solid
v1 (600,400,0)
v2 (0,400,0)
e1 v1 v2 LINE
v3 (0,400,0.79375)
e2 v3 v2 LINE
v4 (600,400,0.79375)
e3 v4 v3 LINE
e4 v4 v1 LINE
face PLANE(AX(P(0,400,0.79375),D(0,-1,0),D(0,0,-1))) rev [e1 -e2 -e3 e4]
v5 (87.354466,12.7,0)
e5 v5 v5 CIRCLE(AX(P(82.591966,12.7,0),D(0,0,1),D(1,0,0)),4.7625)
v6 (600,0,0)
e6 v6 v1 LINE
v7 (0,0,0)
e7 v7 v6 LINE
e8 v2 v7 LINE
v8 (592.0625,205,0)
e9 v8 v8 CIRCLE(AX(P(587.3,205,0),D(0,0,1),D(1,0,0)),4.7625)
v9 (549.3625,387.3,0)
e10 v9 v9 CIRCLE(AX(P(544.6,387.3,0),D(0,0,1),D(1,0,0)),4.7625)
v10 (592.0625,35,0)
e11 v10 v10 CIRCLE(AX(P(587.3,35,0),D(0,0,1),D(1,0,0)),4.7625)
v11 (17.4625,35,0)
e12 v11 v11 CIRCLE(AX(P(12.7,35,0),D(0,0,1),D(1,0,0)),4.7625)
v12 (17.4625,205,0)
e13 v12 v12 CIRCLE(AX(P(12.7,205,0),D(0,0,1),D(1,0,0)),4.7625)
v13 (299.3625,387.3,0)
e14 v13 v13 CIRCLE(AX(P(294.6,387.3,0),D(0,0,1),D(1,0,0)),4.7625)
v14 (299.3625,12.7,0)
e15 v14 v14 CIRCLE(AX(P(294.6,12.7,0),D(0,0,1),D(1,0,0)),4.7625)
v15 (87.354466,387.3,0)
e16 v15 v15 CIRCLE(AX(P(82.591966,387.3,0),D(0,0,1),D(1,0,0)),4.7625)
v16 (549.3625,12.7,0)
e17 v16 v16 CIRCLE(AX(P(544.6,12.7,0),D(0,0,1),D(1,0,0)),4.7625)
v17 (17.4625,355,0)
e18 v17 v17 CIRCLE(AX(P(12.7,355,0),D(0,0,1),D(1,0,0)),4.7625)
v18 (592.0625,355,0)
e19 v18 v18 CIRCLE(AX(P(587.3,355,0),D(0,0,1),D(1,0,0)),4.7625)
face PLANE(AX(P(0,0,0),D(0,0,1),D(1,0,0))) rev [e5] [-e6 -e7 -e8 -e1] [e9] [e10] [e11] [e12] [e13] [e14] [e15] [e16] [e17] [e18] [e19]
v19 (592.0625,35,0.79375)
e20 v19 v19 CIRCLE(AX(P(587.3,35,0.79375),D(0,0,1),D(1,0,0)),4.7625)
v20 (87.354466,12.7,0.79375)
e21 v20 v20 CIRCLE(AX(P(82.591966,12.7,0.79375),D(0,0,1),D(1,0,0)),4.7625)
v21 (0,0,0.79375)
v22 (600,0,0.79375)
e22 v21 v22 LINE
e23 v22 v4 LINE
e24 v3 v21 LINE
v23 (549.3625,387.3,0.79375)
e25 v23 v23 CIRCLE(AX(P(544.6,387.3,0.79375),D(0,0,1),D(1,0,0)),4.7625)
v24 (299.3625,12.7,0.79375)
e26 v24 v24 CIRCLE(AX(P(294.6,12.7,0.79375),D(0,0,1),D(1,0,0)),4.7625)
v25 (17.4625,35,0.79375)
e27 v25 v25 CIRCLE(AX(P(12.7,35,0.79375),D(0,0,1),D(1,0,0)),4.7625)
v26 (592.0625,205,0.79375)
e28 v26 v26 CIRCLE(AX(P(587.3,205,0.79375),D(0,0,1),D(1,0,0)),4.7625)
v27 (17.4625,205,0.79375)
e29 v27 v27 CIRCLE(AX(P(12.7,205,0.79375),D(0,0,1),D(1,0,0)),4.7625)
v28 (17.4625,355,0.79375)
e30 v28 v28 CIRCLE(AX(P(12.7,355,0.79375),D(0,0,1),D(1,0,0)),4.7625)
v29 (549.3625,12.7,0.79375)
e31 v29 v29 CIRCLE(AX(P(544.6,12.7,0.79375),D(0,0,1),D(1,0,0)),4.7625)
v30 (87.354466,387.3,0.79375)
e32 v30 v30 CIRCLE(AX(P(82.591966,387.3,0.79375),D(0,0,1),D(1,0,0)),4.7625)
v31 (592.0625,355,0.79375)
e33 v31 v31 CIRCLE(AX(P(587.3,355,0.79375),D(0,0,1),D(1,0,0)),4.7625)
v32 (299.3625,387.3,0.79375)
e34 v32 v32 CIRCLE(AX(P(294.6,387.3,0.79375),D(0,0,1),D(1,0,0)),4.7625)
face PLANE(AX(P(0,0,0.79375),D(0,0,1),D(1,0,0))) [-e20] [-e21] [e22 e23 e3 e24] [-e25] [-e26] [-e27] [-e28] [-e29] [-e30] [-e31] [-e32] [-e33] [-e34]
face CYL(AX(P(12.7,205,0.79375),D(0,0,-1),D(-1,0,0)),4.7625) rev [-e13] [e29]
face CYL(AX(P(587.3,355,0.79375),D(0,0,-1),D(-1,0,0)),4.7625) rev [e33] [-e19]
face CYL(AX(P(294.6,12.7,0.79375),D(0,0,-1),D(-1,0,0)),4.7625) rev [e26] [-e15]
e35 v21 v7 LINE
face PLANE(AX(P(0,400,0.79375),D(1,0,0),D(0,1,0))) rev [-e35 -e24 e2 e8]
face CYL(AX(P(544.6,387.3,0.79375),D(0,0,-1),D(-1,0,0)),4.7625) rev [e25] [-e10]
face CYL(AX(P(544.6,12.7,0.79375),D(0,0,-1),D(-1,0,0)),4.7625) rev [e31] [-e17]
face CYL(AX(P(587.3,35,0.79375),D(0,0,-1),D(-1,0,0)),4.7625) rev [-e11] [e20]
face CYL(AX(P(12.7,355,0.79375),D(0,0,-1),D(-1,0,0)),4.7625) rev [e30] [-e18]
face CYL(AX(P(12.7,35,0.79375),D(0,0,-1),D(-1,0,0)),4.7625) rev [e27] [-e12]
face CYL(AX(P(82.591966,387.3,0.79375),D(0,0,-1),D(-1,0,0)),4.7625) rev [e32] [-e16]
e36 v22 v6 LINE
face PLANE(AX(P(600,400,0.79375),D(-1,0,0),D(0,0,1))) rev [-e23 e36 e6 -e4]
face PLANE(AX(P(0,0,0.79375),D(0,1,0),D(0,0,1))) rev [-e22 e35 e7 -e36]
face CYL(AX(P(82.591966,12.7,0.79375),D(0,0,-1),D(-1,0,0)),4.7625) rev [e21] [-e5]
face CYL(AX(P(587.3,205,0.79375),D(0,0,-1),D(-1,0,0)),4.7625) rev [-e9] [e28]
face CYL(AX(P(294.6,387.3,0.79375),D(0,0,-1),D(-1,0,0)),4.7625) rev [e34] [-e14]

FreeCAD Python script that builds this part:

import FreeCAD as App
import Part
import Sketcher
from FreeCAD import Vector

doc = App.newDocument("Part")
body = doc.addObject("PartDesign::Body", "Body")

# Sketch on XY plane
sketch1 = body.newObject("Sketcher::SketchObject", "Sketch")
sketch1.AttachmentSupport = (doc.getObject("XY_Plane"), [""])
sketch1.MapMode = "FlatFace"
sketch1.addGeometry(Part.LineSegment(Vector(0, 400, 0), Vector(0, 0, 0)), False)
sketch1.addGeometry(Part.LineSegment(Vector(0, 0, 0), Vector(600, 0, 0)), False)
sketch1.addGeometry(Part.LineSegment(Vector(600, 0, 0), Vector(600, 400, 0)), False)
sketch1.addGeometry(Part.LineSegment(Vector(600, 400, 0), Vector(0, 400, 0)), False)
sketch1.addGeometry(Part.Circle(Vector(12.7, 35, 0), Vector(0, 0, 1), 4.7625), False)
sketch1.addGeometry(Part.Circle(Vector(82.591966, 12.7, 0), Vector(0, 0, 1), 4.7625), False)
sketch1.addGeometry(Part.Circle(Vector(294.6, 12.7, 0), Vector(0, 0, 1), 4.7625), False)
sketch1.addGeometry(Part.Circle(Vector(544.6, 12.7, 0), Vector(0, 0, 1), 4.7625), False)
sketch1.addGeometry(Part.Circle(Vector(587.3, 35, 0), Vector(0, 0, 1), 4.7625), False)
sketch1.addGeometry(Part.Circle(Vector(12.7, 205, 0), Vector(0, 0, 1), 4.7625), False)
sketch1.addGeometry(Part.Circle(Vector(12.7, 355, 0), Vector(0, 0, 1), 4.7625), False)
sketch1.addGeometry(Part.Circle(Vector(82.591966, 387.3, 0), Vector(0, 0, 1), 4.7625), False)
sketch1.addGeometry(Part.Circle(Vector(294.6, 387.3, 0), Vector(0, 0, 1), 4.7625), False)
sketch1.addGeometry(Part.Circle(Vector(587.3, 205, 0), Vector(0, 0, 1), 4.7625), False)
sketch1.addGeometry(Part.Circle(Vector(587.3, 355, 0), Vector(0, 0, 1), 4.7625), False)
sketch1.addGeometry(Part.Circle(Vector(544.6, 387.3, 0), Vector(0, 0, 1), 4.7625), False)
sketch1.addConstraint(Sketcher.Constraint("Coincident", 0, 2, 1, 1))
sketch1.addConstraint(Sketcher.Constraint("Coincident", 1, 2, 2, 1))
sketch1.addConstraint(Sketcher.Constraint("Coincident", 2, 2, 3, 1))
sketch1.addConstraint(Sketcher.Constraint("Coincident", 3, 2, 0, 1))
sketch1.addConstraint(Sketcher.Constraint("Vertical", 0))
sketch1.addConstraint(Sketcher.Constraint("Horizontal", 1))
sketch1.addConstraint(Sketcher.Constraint("Vertical", 2))
sketch1.addConstraint(Sketcher.Constraint("Horizontal", 3))
sketch1.addConstraint(Sketcher.Constraint("Coincident", 0, 2, -1, 1))
sketch1.addConstraint(Sketcher.Constraint("Equal", 4, 5))
sketch1.addConstraint(Sketcher.Constraint("Equal", 5, 6))
sketch1.addConstraint(Sketcher.Constraint("Equal", 6, 7))
sketch1.addConstraint(Sketcher.Constraint("Equal", 7, 8))
sketch1.addConstraint(Sketcher.Constraint("Equal", 8, 9))
sketch1.addConstraint(Sketcher.Constraint("Equal", 9, 10))
sketch1.addConstraint(Sketcher.Constraint("Equal", 10, 11))
sketch1.addConstraint(Sketcher.Constraint("Equal", 11, 12))
sketch1.addConstraint(Sketcher.Constraint("Equal", 12, 13))
sketch1.addConstraint(Sketcher.Constraint("Equal", 13, 14))
sketch1.addConstraint(Sketcher.Constraint("Equal", 14, 15))
sketch1.addConstraint(Sketcher.Constraint("Horizontal", 5, 3, 6, 3))
sketch1.addConstraint(Sketcher.Constraint("Horizontal", 6, 3, 7, 3))
sketch1.addConstraint(Sketcher.Constraint("Horizontal", 4, 3, 8, 3))
sketch1.addConstraint(Sketcher.Constraint("Horizontal", 11, 3, 12, 3))
sketch1.addConstraint(Sketcher.Constraint("Horizontal", 9, 3, 13, 3))
sketch1.addConstraint(Sketcher.Constraint("Horizontal", 10, 3, 14, 3))
sketch1.addConstraint(Sketcher.Constraint("Horizontal", 12, 3, 15, 3))
sketch1.addConstraint(Sketcher.Constraint("Vertical", 4, 3, 9, 3))
sketch1.addConstraint(Sketcher.Constraint("Vertical", 9, 3, 10, 3))
sketch1.addConstraint(Sketcher.Constraint("Vertical", 5, 3, 11, 3))
sketch1.addConstraint(Sketcher.Constraint("Vertical", 6, 3, 12, 3))
sketch1.addConstraint(Sketcher.Constraint("Vertical", 8, 3, 13, 3))
sketch1.addConstraint(Sketcher.Constraint("Vertical", 13, 3, 14, 3))
sketch1.addConstraint(Sketcher.Constraint("Vertical", 7, 3, 15, 3))
sketch1.addConstraint(Sketcher.Constraint("DistanceX", 1, 1, 1, 2, 600.0))
sketch1.addConstraint(Sketcher.Constraint("DistanceY", 0, 2, 0, 1, 400.0))
sketch1.addConstraint(Sketcher.Constraint("Diameter", 4, 9.525))
sketch1.addConstraint(Sketcher.Constraint("DistanceY", -1, 1, 4, 3, 35.0))
sketch1.addConstraint(Sketcher.Constraint("DistanceY", -1, 1, 9, 3, 205.0))
sketch1.addConstraint(Sketcher.Constraint("DistanceY", -1, 1, 10, 3, 355.0))
sketch1.addConstraint(Sketcher.Constraint("DistanceX", 6, 3, 7, 3, 250.0))
sketch1.addConstraint(Sketcher.Constraint("DistanceX", -1, 1, 4, 3, 12.7))
sketch1.addConstraint(Sketcher.Constraint("DistanceY", -1, 1, 5, 3, 12.7))
sketch1.addConstraint(Sketcher.Constraint("DistanceX", -1, 1, 6, 3, 294.6))
sketch1.addConstraint(Sketcher.Constraint("DistanceX", -1, 1, 8, 3, 587.3))
sketch1.addConstraint(Sketcher.Constraint("DistanceY", -1, 1, 11, 3, 387.3))
sketch1.addConstraint(Sketcher.Constraint("DistanceX", -1, 1, 5, 3, 82.591966))
pad1 = body.newObject("PartDesign::Pad", "Pad")
pad1.Profile = sketch1
pad1.Length = 0.79375

doc.recompute()
